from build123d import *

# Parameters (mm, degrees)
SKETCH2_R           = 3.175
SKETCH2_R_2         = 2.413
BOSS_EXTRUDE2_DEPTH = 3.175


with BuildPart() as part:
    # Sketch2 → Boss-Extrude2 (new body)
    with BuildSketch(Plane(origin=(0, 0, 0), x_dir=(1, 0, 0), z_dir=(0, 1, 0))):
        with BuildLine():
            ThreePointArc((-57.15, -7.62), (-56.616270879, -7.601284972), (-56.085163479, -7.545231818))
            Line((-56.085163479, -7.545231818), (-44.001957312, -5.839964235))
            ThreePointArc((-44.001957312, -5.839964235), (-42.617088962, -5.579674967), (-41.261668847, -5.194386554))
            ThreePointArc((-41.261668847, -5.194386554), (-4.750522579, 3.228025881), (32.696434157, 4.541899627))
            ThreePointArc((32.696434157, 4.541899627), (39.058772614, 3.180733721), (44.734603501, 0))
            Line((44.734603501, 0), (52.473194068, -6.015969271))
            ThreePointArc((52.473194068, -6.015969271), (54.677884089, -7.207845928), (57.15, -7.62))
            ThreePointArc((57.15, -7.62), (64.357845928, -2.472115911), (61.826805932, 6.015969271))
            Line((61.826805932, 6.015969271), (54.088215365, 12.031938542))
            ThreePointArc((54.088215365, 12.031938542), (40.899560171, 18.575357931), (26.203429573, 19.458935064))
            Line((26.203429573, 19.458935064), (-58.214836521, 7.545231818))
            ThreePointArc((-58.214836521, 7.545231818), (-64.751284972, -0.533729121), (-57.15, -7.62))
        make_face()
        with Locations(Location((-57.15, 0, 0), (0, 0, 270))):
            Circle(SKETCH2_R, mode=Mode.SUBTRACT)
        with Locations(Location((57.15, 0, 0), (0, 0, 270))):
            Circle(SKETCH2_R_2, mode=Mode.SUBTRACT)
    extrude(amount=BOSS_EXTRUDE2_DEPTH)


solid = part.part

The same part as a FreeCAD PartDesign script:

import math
import FreeCAD as App
import Part
import Sketcher
from FreeCAD import Vector
Q = App.Units.Quantity

doc = App.newDocument("Part")
params = doc.addObject("Spreadsheet::Sheet", "Params")
for row, (alias, value) in enumerate([
    ("sketch1_radius", "0.3 in"),
    ("sketch1_diameter", "0.25 in"),
    ("sketch1_diameter2", "0.19 in"),
    ("pad1_length", "0.125 in"),
], start=1):
    params.set(f"A{row}", alias)
    params.set(f"B{row}", "=" + value)
    params.setAlias(f"B{row}", alias)

body = doc.addObject("PartDesign::Body", "Body")

# Sketch on XZ plane
sketch1 = body.newObject("Sketcher::SketchObject", "Sketch")
sketch1.AttachmentSupport = (doc.getObject("XZ_Plane"), [""])
sketch1.MapMode = "FlatFace"
sketch1.addGeometry([
    Part.ArcOfCircle(Part.Circle(Vector(-57.2, 0, 0), Vector(0, 0, 1), 7.6), math.radians(81.97), math.radians(90)),  # 0
    Part.LineSegment(Vector(-56.1, 7.5, 0), Vector(-44, 5.8, 0)),  # 1
    Part.ArcOfCircle(Part.Circle(Vector(-46.2, -9.5, 0), Vector(0, 0, 1), 15.5), math.radians(71.52), math.radians(81.97)),  # 2
    Part.ArcOfCircle(Part.Circle(Vector(20.8, 190.9, 0), Vector(0, 0, 1), 195.8), math.radians(-108), math.radians(-87)),  # 3
    Part.ArcOfCircle(Part.Circle(Vector(31.4, 17.2, 0), Vector(0, 0, 1), 21.8), math.radians(-87), math.radians(-52)),  # 4
    Part.LineSegment(Vector(44.7, 0, 0), Vector(52.5, 6, 0)),  # 5
    Part.ArcOfCircle(Part.Circle(Vector(57.1, 0, 0), Vector(0, 0, 1), 7.6), math.radians(90), math.radians(128)),  # 6
    Part.ArcOfCircle(Part.Circle(Vector(57.1, 0, 0), Vector(0, 0, 1), 7.6), math.radians(-52), math.radians(90)),  # 7
    Part.LineSegment(Vector(61.8, -6, 0), Vector(54.1, -12, 0)),  # 8
    Part.ArcOfCircle(Part.Circle(Vector(31.4, 17.2, 0), Vector(0, 0, 1), 37), math.radians(-98), math.radians(-52)),  # 9
    Part.LineSegment(Vector(26.2, -19.5, 0), Vector(-58.2, -7.5, 0)),  # 10
    Part.ArcOfCircle(Part.Circle(Vector(-57.1, 0, 0), Vector(0, 0, 1), 7.6), math.radians(90), math.radians(262)),  # 11
    Part.Circle(Vector(-57.1, 0, 0), Vector(0, 0, 1), 3.2),  # 12
    Part.Circle(Vector(57.1, 0, 0), Vector(0, 0, 1), 2.4),  # 13
], False)
sketch1.addConstraint([
    Sketcher.Constraint("Tangent", 0, 1, 1, 1),
    Sketcher.Constraint("Tangent", 1, 2, 2, 2),
    Sketcher.Constraint("Tangent", 2, 1, 3, 1),
    Sketcher.Constraint("Tangent", 3, 2, 4, 1),
    Sketcher.Constraint("Tangent", 4, 2, 5, 1),
    Sketcher.Constraint("Tangent", 5, 2, 6, 2),
    Sketcher.Constraint("Tangent", 6, 1, 7, 2),
    Sketcher.Constraint("Tangent", 7, 1, 8, 1),
    Sketcher.Constraint("Tangent", 8, 2, 9, 2),
    Sketcher.Constraint("Tangent", 9, 1, 10, 1),
    Sketcher.Constraint("Tangent", 10, 2, 11, 2),
    Sketcher.Constraint("Tangent", 11, 1, 0, 2),
    Sketcher.Constraint("Coincident", 9, 3, 4, 3),
    Sketcher.Constraint("Coincident", 12, 3, 0, 3),
    Sketcher.Constraint("Coincident", 13, 3, 6, 3),
    Sketcher.Constraint("Equal", 0, 6),
    Sketcher.Constraint("Equal", 6, 7),
    Sketcher.Constraint("Equal", 7, 11),
    Sketcher.Constraint("Symmetric", 0, 3, 6, 3, -1, 1),
    Sketcher.Constraint("Symmetric", 6, 1, 11, 1, -2),
    Sketcher.Constraint("PointOnObject", 4, 2, -1),
    Sketcher.Constraint("Parallel", 5, 8),
    Sketcher.Constraint("Parallel", 1, 10),
    Sketcher.Constraint("Vertical", 13, 3, 6, 1),
    Sketcher.Constraint("Radius", 0, Q("0.3 in")),
    Sketcher.Constraint("Diameter", 12, Q("0.25 in")),
    Sketcher.Constraint("Diameter", 13, Q("0.19 in")),
    Sketcher.Constraint("DistanceX", 0, 3, 6, 3, Q("4.5 in")),
    Sketcher.Constraint("DistanceY", 9, 1, -1, 1, Q("0.7660998 in")),
    Sketcher.Constraint("Radius", 2, 15.461715),
    Sketcher.Constraint("Radius", 3, 195.819513),
    Sketcher.Constraint("Radius", 4, 21.767193),
    Sketcher.Constraint("DistanceY", 2, 3, -1, 1, 9.470039),
])
sketch1.setExpression("Constraints[24]", "Params.sketch1_radius")
sketch1.setExpression("Constraints[25]", "Params.sketch1_diameter")
sketch1.setExpression("Constraints[26]", "Params.sketch1_diameter2")
pad1 = body.newObject("PartDesign::Pad", "Pad")
pad1.Profile = sketch1
pad1.setExpression("Length", "Params.pad1_length")
pad1.Reversed = True

doc.recompute()
